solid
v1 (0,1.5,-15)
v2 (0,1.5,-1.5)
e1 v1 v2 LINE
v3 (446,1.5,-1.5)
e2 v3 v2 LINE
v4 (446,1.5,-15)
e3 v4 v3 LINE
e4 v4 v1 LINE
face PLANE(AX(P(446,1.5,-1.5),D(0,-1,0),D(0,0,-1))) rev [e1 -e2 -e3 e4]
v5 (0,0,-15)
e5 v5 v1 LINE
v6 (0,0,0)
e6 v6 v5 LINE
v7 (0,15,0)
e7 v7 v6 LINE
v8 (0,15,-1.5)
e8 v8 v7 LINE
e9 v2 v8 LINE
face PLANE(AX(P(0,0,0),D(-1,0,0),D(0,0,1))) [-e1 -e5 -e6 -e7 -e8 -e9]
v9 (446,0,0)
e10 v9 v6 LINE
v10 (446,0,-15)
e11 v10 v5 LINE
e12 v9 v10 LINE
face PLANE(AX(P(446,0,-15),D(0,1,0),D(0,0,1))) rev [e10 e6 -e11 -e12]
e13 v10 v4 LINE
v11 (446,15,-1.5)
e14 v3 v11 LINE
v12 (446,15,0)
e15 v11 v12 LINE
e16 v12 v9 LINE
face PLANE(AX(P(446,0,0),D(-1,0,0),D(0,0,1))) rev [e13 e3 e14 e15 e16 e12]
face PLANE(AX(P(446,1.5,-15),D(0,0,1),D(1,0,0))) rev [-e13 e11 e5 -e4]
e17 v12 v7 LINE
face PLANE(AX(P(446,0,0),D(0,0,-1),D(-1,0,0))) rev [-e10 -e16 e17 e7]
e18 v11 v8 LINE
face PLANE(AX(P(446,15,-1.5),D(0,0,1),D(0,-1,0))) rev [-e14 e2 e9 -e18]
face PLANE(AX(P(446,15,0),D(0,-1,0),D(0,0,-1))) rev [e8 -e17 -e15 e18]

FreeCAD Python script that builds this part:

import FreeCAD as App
import Part
import Sketcher
from FreeCAD import Vector

doc = App.newDocument("Part")
body = doc.addObject("PartDesign::Body", "Body")

# Sketch on YZ plane
sketch1 = body.newObject("Sketcher::SketchObject", "Sketch")
sketch1.AttachmentSupport = (doc.getObject("YZ_Plane"), [""])
sketch1.MapMode = "FlatFace"
sketch1.addGeometry(Part.LineSegment(Vector(15, 0, 0), Vector(0, 0, 0)), False)
sketch1.addGeometry(Part.LineSegment(Vector(0, 0, 0), Vector(0, -15, 0)), False)
sketch1.addGeometry(Part.LineSegment(Vector(0, -15, 0), Vector(1.5, -15, 0)), False)
sketch1.addGeometry(Part.LineSegment(Vector(1.5, -15, 0), Vector(1.5, -1.5, 0)), False)
sketch1.addGeometry(Part.LineSegment(Vector(1.5, -1.5, 0), Vector(15, -1.5, 0)), False)
sketch1.addGeometry(Part.LineSegment(Vector(15, -1.5, 0), Vector(15, 0, 0)), False)
sketch1.addConstraint(Sketcher.Constraint("Coincident", 0, 2, 1, 1))
sketch1.addConstraint(Sketcher.Constraint("Coincident", 1, 2, 2, 1))
sketch1.addConstraint(Sketcher.Constraint("Coincident", 2, 2, 3, 1))
sketch1.addConstraint(Sketcher.Constraint("Coincident", 3, 2, 4, 1))
sketch1.addConstraint(Sketcher.Constraint("Coincident", 4, 2, 5, 1))
sketch1.addConstraint(Sketcher.Constraint("Coincident", 5, 2, 0, 1))
sketch1.addConstraint(Sketcher.Constraint("Horizontal", 0))
sketch1.addConstraint(Sketcher.Constraint("Vertical", 1))
sketch1.addConstraint(Sketcher.Constraint("Horizontal", 2))
sketch1.addConstraint(Sketcher.Constraint("Vertical", 3))
sketch1.addConstraint(Sketcher.Constraint("Horizontal", 4))
sketch1.addConstraint(Sketcher.Constraint("Vertical", 5))
sketch1.addConstraint(Sketcher.Constraint("Coincident", 0, 2, -1, 1))
sketch1.addConstraint(Sketcher.Constraint("Equal", 0, 1))
sketch1.addConstraint(Sketcher.Constraint("Equal", 4, 3))
sketch1.addConstraint(Sketcher.Constraint("DistanceX", 0, 2, 0, 1, 15.0))
sketch1.addConstraint(Sketcher.Constraint("DistanceX", 2, 1, 2, 2, 1.5))
pad1 = body.newObject("PartDesign::Pad", "Pad")
pad1.Profile = sketch1
pad1.Length = 446

doc.recompute()
